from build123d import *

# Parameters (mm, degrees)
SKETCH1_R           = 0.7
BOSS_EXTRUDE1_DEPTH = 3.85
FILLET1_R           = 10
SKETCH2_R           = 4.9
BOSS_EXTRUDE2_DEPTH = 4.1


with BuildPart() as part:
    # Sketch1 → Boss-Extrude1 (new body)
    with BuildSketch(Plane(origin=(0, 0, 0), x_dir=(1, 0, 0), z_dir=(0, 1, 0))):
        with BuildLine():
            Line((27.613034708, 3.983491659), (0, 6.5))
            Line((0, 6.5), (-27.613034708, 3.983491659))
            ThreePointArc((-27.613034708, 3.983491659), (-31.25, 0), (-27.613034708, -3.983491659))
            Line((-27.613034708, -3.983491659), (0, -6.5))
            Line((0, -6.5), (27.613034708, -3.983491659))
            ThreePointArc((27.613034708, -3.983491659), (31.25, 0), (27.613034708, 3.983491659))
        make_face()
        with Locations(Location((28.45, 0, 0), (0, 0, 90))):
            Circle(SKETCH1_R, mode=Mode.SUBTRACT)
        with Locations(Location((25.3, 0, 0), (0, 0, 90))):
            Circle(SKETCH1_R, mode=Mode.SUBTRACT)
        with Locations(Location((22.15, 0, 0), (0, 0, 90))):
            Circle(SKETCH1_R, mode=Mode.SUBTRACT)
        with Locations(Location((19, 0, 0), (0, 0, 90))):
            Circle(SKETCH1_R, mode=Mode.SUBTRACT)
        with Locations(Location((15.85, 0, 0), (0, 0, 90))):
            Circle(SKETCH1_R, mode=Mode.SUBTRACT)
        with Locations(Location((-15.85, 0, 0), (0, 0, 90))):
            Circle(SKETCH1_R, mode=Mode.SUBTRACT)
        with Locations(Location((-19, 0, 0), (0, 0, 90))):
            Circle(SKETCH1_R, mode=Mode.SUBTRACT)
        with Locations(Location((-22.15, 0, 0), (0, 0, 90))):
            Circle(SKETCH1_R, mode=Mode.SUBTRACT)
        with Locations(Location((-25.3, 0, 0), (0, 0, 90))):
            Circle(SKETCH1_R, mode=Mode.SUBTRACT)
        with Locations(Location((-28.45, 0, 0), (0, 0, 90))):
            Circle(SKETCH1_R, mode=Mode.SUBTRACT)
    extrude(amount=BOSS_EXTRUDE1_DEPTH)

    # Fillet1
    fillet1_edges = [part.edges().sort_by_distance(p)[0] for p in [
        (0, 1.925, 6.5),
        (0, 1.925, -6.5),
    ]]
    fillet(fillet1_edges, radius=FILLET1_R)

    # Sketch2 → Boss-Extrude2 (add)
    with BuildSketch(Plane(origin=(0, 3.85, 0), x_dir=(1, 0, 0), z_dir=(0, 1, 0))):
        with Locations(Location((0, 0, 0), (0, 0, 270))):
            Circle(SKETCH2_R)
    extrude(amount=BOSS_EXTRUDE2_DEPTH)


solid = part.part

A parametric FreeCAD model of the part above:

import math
import FreeCAD as App
import Part
import Sketcher


def edges_at(feature, points):
    """Names of the edges that pass closest to the given points."""
    edges = feature.Shape.Edges
    near = lambda p: min(range(len(edges)), key=lambda i: edges[i].distToShape(Part.Vertex(*p))[0])
    return sorted({f"Edge{near(p) + 1}" for p in points})

doc = App.newDocument("Part")
body = doc.addObject("PartDesign::Body", "Body")

# Sketch on XZ plane
sketch1 = body.newObject("Sketcher::SketchObject", "Sketch")
sketch1.AttachmentSupport = (doc.getObject("XZ_Plane"), [""])
sketch1.MapMode = "FlatFace"
sketch1.addGeometry(Part.LineSegment(App.Vector(27.6, -4, 0), App.Vector(0, -6.5, 0)), False)
sketch1.addGeometry(Part.LineSegment(App.Vector(0, -6.5, 0), App.Vector(-27.6, -4, 0)), False)
sketch1.addGeometry(Part.ArcOfCircle(Part.Circle(App.Vector(-27.2, 0, 0), App.Vector(0, 0, 1), 4), math.radians(95), math.radians(265)), False)
sketch1.addGeometry(Part.LineSegment(App.Vector(-27.6, 4, 0), App.Vector(0, 6.5, 0)), False)
sketch1.addGeometry(Part.LineSegment(App.Vector(0, 6.5, 0), App.Vector(27.6, 4, 0)), False)
sketch1.addGeometry(Part.ArcOfCircle(Part.Circle(App.Vector(27.2, 0, 0), App.Vector(0, 0, 1), 4), math.radians(-85), math.radians(85)), False)
sketch1.addGeometry(Part.Circle(App.Vector(-28.4, 0, 0), App.Vector(0, 0, 1), 0.7), False)
sketch1.addGeometry(Part.Circle(App.Vector(-25.3, 0, 0), App.Vector(0, 0, 1), 0.7), False)
sketch1.addGeometry(Part.Circle(App.Vector(-22.1, 0, 0), App.Vector(0, 0, 1), 0.7), False)
sketch1.addGeometry(Part.Circle(App.Vector(-19, 0, 0), App.Vector(0, 0, 1), 0.7), False)
sketch1.addGeometry(Part.Circle(App.Vector(-15.8, 0, 0), App.Vector(0, 0, 1), 0.7), False)
sketch1.addGeometry(Part.Circle(App.Vector(15.8, 0, 0), App.Vector(0, 0, 1), 0.7), False)
sketch1.addGeometry(Part.Circle(App.Vector(19, 0, 0), App.Vector(0, 0, 1), 0.7), False)
sketch1.addGeometry(Part.Circle(App.Vector(22.1, 0, 0), App.Vector(0, 0, 1), 0.7), False)
sketch1.addGeometry(Part.Circle(App.Vector(25.3, 0, 0), App.Vector(0, 0, 1), 0.7), False)
sketch1.addGeometry(Part.Circle(App.Vector(28.4, 0, 0), App.Vector(0, 0, 1), 0.7), False)
sketch1.addConstraint(Sketcher.Constraint("Coincident", 0, 2, 1, 1))
sketch1.addConstraint(Sketcher.Constraint("Tangent", 1, 2, 2, 2))
sketch1.addConstraint(Sketcher.Constraint("Tangent", 2, 1, 3, 1))
sketch1.addConstraint(Sketcher.Constraint("Coincident", 3, 2, 4, 1))
sketch1.addConstraint(Sketcher.Constraint("Tangent", 4, 2, 5, 2))
sketch1.addConstraint(Sketcher.Constraint("Tangent", 5, 1, 0, 1))
sketch1.addConstraint(Sketcher.Constraint("Equal", 2, 5))
sketch1.addConstraint(Sketcher.Constraint("Equal", 6, 7))
sketch1.addConstraint(Sketcher.Constraint("Equal", 7, 8))
sketch1.addConstraint(Sketcher.Constraint("Equal", 8, 9))
sketch1.addConstraint(Sketcher.Constraint("Equal", 9, 10))
sketch1.addConstraint(Sketcher.Constraint("Equal", 10, 11))
sketch1.addConstraint(Sketcher.Constraint("Equal", 11, 12))
sketch1.addConstraint(Sketcher.Constraint("Equal", 12, 13))
sketch1.addConstraint(Sketcher.Constraint("Equal", 13, 14))
sketch1.addConstraint(Sketcher.Constraint("Equal", 14, 15))
sketch1.addConstraint(Sketcher.Constraint("Symmetric", 2, 3, 5, 3, -1, 1))
sketch1.addConstraint(Sketcher.Constraint("Symmetric", 10, 3, 11, 3, -1, 1))
sketch1.addConstraint(Sketcher.Constraint("Symmetric", 9, 3, 12, 3, -1, 1))
sketch1.addConstraint(Sketcher.Constraint("Symmetric", 8, 3, 13, 3, -1, 1))
sketch1.addConstraint(Sketcher.Constraint("Symmetric", 7, 3, 14, 3, -1, 1))
sketch1.addConstraint(Sketcher.Constraint("Symmetric", 6, 3, 15, 3, -1, 1))
sketch1.addConstraint(Sketcher.Constraint("Symmetric", 0, 2, 3, 2, -1, 1))
sketch1.addConstraint(Sketcher.Constraint("Symmetric", 2, 1, 4, 2, -2))
sketch1.addConstraint(Sketcher.Constraint("PointOnObject", 6, 3, -1))
sketch1.addConstraint(Sketcher.Constraint("PointOnObject", 7, 3, -1))
sketch1.addConstraint(Sketcher.Constraint("PointOnObject", 8, 3, -1))
sketch1.addConstraint(Sketcher.Constraint("PointOnObject", 9, 3, -1))
sketch1.addConstraint(Sketcher.Constraint("PointOnObject", 10, 3, -1))
sketch1.addConstraint(Sketcher.Constraint("Radius", 2, 4.0))
sketch1.addConstraint(Sketcher.Constraint("Diameter", 6, 1.4))
sketch1.addConstraint(Sketcher.Constraint("DistanceX", 9, 3, -1, 1, 19.0))
sketch1.addConstraint(Sketcher.Constraint("DistanceX", 8, 3, 11, 3, 38.0))
sketch1.addConstraint(Sketcher.Constraint("DistanceY", 0, 2, 3, 2, 13.0))
sketch1.addConstraint(Sketcher.Constraint("DistanceX", 7, 3, -1, 1, 25.3))
sketch1.addConstraint(Sketcher.Constraint("DistanceX", 2, 3, 5, 3, 54.5))
sketch1.addConstraint(Sketcher.Constraint("DistanceX", 6, 3, 2, 3, 1.2))
sketch1.addConstraint(Sketcher.Constraint("DistanceX", 2, 3, 8, 3, 5.1))
pad1 = body.newObject("PartDesign::Pad", "Pad")
pad1.Profile = sketch1
pad1.Length = 3.85
pad1.Reversed = True
doc.recompute()

fillet = body.newObject("PartDesign::Fillet", "Fillet")
fillet.Base = (pad1, edges_at(pad1, [(0, 1.925, 6.5), (0, 1.925, -6.5)]))
fillet.Radius = 10

# Sketch on XZ plane
sketch2 = body.newObject("Sketcher::SketchObject", "Sketch001")
sketch2.AttachmentSupport = (doc.getObject("XZ_Plane"), [""])
sketch2.MapMode = "FlatFace"
sketch2.AttachmentOffset = App.Placement(App.Vector(0, 0, -3.85), App.Rotation())
sketch2.addGeometry(Part.Circle(App.Vector(0, 0, 0), App.Vector(0, 0, 1), 4.9), False)
sketch2.addConstraint(Sketcher.Constraint("Coincident", 0, 3, -1, 1))
sketch2.addConstraint(Sketcher.Constraint("Diameter", 0, 9.8))
pad2 = body.newObject("PartDesign::Pad", "Pad001")
pad2.Profile = sketch2
pad2.Length = 4.1
pad2.Reversed = True

doc.recompute()
